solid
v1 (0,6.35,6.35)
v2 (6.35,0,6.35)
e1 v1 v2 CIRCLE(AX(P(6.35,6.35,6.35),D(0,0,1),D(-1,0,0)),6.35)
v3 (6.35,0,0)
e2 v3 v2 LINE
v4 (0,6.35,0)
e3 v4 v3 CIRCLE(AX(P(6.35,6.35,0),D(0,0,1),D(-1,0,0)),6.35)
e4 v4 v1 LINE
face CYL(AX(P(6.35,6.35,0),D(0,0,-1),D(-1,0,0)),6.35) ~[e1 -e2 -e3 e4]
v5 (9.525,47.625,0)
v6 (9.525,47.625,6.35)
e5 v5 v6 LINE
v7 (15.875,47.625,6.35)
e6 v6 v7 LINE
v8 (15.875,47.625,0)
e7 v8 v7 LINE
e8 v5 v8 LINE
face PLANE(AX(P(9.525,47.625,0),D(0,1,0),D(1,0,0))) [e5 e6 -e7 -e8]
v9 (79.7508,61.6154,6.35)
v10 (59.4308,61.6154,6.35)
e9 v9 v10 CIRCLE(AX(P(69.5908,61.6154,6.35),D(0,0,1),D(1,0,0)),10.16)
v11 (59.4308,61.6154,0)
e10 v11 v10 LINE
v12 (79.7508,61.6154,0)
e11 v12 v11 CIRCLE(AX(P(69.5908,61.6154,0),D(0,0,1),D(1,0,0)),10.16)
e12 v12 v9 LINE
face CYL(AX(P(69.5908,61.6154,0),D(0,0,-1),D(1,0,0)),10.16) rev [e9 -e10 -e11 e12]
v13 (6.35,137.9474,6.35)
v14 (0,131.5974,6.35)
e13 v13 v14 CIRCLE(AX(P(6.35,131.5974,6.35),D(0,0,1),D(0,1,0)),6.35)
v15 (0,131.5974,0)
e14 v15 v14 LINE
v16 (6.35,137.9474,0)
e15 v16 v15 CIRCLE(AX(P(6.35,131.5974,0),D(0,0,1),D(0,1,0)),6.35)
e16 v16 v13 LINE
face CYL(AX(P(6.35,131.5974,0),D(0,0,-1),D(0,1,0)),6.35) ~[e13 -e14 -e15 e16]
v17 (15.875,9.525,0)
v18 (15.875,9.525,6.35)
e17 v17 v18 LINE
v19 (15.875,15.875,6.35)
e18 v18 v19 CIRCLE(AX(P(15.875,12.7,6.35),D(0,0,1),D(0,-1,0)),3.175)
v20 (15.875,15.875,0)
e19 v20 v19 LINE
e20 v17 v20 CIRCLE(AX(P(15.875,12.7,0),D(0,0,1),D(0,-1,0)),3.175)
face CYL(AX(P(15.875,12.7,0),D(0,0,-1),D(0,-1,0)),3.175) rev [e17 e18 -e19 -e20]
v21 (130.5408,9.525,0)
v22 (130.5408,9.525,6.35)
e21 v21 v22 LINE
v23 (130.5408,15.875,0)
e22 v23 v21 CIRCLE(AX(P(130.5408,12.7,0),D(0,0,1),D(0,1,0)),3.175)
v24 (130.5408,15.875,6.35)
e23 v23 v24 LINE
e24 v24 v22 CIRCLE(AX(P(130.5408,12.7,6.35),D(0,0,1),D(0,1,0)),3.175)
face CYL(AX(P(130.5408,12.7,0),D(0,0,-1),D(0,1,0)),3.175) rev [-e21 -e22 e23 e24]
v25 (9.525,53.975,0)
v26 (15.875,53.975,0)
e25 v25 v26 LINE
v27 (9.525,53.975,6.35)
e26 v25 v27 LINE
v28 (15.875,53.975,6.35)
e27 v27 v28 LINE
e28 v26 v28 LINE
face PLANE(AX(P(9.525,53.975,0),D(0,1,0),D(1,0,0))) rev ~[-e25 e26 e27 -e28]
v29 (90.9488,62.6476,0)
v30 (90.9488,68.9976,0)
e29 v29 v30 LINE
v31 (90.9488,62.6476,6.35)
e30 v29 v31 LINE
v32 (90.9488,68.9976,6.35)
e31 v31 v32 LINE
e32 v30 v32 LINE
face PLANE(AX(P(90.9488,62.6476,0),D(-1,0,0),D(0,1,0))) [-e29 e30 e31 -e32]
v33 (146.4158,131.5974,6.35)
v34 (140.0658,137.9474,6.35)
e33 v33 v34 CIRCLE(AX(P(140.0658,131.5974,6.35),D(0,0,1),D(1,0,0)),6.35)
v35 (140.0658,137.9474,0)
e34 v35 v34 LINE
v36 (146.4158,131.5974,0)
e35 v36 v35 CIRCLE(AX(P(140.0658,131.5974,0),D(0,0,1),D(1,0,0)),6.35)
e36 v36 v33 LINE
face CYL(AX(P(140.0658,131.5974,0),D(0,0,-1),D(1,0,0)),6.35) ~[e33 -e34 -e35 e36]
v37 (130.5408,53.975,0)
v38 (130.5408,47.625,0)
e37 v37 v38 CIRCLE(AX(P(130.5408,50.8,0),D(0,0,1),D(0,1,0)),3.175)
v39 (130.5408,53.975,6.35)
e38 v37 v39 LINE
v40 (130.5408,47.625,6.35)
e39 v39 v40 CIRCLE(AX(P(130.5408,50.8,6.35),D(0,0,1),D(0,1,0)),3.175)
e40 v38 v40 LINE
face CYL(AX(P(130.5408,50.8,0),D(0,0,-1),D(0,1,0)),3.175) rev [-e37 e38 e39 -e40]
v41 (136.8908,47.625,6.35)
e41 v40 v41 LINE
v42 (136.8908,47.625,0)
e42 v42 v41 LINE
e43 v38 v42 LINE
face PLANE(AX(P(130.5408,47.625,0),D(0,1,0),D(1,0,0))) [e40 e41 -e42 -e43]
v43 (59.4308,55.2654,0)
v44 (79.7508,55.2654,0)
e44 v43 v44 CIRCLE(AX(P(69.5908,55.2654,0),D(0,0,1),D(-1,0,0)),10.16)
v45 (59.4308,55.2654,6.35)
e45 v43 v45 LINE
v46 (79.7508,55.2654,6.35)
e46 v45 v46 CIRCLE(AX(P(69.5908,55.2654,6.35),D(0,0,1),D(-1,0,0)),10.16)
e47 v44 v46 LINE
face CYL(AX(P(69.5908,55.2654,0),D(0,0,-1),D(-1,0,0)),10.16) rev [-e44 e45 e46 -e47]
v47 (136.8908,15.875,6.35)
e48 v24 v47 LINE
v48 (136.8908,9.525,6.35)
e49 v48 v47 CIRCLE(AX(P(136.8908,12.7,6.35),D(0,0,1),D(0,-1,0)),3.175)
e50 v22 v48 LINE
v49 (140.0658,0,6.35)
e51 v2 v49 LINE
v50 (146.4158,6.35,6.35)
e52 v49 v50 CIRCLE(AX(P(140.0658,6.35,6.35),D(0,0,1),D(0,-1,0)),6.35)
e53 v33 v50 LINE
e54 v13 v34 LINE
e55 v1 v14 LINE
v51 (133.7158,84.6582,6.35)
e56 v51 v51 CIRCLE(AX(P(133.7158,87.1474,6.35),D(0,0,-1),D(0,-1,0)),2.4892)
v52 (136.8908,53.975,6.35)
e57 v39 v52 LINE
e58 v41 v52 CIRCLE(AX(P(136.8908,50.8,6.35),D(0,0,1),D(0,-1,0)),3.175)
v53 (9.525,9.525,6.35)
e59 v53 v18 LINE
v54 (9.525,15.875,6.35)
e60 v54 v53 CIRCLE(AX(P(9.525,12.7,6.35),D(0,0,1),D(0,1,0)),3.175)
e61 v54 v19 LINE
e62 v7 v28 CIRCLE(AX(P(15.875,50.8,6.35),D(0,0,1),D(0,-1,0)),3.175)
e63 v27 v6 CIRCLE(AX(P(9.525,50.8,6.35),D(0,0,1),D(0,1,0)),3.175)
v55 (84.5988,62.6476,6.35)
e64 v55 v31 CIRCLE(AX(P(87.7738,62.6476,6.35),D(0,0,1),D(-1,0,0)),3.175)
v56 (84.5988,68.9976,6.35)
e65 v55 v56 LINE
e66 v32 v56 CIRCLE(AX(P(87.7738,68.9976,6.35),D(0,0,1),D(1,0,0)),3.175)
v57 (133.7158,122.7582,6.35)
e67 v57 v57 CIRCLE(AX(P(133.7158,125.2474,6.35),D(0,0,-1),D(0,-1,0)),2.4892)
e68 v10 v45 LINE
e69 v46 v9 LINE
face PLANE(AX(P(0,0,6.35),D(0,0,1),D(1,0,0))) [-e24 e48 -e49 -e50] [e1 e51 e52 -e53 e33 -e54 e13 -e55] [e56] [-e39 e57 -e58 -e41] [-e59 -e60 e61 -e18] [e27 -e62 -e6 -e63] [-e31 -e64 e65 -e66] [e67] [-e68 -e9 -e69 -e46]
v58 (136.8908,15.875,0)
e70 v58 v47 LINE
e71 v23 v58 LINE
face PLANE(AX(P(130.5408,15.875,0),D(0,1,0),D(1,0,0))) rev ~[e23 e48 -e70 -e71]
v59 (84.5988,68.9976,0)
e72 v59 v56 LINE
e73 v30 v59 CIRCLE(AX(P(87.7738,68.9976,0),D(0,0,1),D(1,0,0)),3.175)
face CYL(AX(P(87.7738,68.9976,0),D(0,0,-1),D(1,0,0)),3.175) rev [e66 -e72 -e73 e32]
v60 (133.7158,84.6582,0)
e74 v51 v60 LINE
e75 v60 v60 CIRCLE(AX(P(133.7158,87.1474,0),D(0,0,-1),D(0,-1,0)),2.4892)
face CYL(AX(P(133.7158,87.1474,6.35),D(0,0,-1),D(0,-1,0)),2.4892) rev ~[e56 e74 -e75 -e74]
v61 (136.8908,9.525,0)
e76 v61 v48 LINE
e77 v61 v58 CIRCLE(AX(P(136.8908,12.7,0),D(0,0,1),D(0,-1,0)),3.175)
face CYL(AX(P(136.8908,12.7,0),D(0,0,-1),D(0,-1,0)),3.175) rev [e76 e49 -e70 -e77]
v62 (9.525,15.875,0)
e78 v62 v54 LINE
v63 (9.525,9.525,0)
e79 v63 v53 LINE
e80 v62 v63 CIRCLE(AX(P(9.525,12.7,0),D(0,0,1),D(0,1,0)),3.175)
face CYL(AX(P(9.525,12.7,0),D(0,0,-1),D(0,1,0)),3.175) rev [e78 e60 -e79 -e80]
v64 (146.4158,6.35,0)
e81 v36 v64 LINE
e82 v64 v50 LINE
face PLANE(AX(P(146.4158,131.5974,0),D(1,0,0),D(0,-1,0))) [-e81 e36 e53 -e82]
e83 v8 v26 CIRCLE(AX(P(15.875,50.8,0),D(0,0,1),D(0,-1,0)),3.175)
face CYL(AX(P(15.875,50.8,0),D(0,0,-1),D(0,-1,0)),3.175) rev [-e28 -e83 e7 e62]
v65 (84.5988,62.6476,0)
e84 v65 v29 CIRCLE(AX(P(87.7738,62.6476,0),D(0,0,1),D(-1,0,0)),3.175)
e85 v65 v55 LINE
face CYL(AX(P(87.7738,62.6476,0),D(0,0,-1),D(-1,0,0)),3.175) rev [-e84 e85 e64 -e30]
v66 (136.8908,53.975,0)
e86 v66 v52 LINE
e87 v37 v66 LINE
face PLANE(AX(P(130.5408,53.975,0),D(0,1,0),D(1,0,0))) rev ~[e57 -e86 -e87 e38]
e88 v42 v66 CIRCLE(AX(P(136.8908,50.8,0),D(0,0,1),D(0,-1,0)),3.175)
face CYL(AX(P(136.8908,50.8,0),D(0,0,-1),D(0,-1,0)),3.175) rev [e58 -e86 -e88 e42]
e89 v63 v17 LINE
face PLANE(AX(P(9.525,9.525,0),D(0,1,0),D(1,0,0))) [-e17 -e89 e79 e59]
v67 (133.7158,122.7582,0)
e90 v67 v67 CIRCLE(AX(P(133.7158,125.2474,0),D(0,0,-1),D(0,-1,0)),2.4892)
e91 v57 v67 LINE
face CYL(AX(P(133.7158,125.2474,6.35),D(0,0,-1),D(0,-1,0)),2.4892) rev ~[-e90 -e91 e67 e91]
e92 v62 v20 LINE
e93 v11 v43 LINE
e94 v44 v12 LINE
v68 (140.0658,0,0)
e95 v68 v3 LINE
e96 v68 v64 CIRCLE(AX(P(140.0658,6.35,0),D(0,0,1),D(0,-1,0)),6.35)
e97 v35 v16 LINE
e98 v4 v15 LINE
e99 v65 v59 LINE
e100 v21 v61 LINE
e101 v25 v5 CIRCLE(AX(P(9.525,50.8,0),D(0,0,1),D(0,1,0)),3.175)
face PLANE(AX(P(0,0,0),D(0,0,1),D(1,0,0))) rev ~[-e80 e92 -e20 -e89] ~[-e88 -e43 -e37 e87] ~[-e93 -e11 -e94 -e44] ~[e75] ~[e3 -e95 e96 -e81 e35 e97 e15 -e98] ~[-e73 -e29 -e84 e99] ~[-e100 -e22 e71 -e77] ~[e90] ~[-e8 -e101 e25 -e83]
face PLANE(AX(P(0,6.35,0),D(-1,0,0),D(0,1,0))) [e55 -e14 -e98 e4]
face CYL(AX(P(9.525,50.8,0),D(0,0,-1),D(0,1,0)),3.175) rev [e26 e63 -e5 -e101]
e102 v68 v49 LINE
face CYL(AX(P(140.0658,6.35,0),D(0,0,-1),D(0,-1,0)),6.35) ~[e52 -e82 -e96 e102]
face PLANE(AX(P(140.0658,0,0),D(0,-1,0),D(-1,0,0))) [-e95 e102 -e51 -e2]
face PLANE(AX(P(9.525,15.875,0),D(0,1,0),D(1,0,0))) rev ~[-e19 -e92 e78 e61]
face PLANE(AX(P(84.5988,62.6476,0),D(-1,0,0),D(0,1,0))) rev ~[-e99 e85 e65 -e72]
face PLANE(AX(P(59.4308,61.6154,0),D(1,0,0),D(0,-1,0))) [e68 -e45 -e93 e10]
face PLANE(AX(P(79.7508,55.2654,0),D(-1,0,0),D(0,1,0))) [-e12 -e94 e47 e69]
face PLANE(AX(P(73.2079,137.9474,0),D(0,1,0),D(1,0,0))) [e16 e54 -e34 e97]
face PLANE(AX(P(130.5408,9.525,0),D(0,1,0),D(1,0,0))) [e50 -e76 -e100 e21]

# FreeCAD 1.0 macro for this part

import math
import FreeCAD as App
import Part
import Sketcher
from FreeCAD import Vector
Q = App.Units.Quantity

doc = App.newDocument("Part")
body = doc.addObject("PartDesign::Body", "Body")

# Sketch on XY plane
sketch1 = body.newObject("Sketcher::SketchObject", "Sketch")
sketch1.AttachmentSupport = (doc.getObject("XY_Plane"), [""])
sketch1.MapMode = "FlatFace"
sketch1.addGeometry([
    Part.LineSegment(Vector(140.1, 137.9, 0), Vector(6.3, 137.9, 0)),  # 0
    Part.ArcOfCircle(Part.Circle(Vector(6.3, 131.6, 0), Vector(0, 0, 1), 6.3), math.radians(90), math.radians(180)),  # 1
    Part.LineSegment(Vector(0, 131.6, 0), Vector(0, 6.3, 0)),  # 2
    Part.ArcOfCircle(Part.Circle(Vector(6.3, 6.3, 0), Vector(0, 0, 1), 6.3), math.radians(180), math.radians(270)),  # 3
    Part.LineSegment(Vector(6.3, 0, 0), Vector(140.1, 0, 0)),  # 4
    Part.ArcOfCircle(Part.Circle(Vector(140.1, 6.3, 0), Vector(0, 0, 1), 6.3), math.radians(-90), math.radians(0)),  # 5
    Part.LineSegment(Vector(146.4, 6.3, 0), Vector(146.4, 131.6, 0)),  # 6
    Part.ArcOfCircle(Part.Circle(Vector(140.1, 131.6, 0), Vector(0, 0, 1), 6.3), math.radians(0), math.radians(90)),  # 7
    Part.ArcOfCircle(Part.Circle(Vector(9.5, 12.7, 0), Vector(0, 0, 1), 3.2), math.radians(90), math.radians(270)),  # 8
    Part.LineSegment(Vector(9.5, 15.9, 0), Vector(15.9, 15.9, 0)),  # 9
    Part.ArcOfCircle(Part.Circle(Vector(15.9, 12.7, 0), Vector(0, 0, 1), 3.2), math.radians(-90), math.radians(90)),  # 10
    Part.LineSegment(Vector(15.9, 9.5, 0), Vector(9.5, 9.5, 0)),  # 11
    Part.ArcOfCircle(Part.Circle(Vector(9.5, 50.8, 0), Vector(0, 0, 1), 3.2), math.radians(90), math.radians(270)),  # 12
    Part.LineSegment(Vector(9.5, 54, 0), Vector(15.9, 54, 0)),  # 13
    Part.ArcOfCircle(Part.Circle(Vector(15.9, 50.8, 0), Vector(0, 0, 1), 3.2), math.radians(-90), math.radians(90)),  # 14
    Part.LineSegment(Vector(15.9, 47.6, 0), Vector(9.5, 47.6, 0)),  # 15
    Part.ArcOfCircle(Part.Circle(Vector(69.6, 61.6, 0), Vector(0, 0, 1), 10.2), math.radians(0), math.radians(180)),  # 16
    Part.LineSegment(Vector(79.8, 61.6, 0), Vector(79.8, 55.3, 0)),  # 17
    Part.ArcOfCircle(Part.Circle(Vector(69.6, 55.3, 0), Vector(0, 0, 1), 10.2), math.radians(180), math.radians(360)),  # 18
    Part.LineSegment(Vector(59.4, 55.3, 0), Vector(59.4, 61.6, 0)),  # 19
    Part.ArcOfCircle(Part.Circle(Vector(130.5, 12.7, 0), Vector(0, 0, 1), 3.2), math.radians(90), math.radians(270)),  # 20
    Part.LineSegment(Vector(130.5, 15.9, 0), Vector(136.9, 15.9, 0)),  # 21
    Part.ArcOfCircle(Part.Circle(Vector(136.9, 12.7, 0), Vector(0, 0, 1), 3.2), math.radians(-90), math.radians(90)),  # 22
    Part.LineSegment(Vector(136.9, 9.5, 0), Vector(130.5, 9.5, 0)),  # 23
    Part.ArcOfCircle(Part.Circle(Vector(87.8, 62.6, 0), Vector(0, 0, 1), 3.2), math.radians(180), math.radians(360)),  # 24
    Part.LineSegment(Vector(84.6, 62.6, 0), Vector(84.6, 69, 0)),  # 25
    Part.ArcOfCircle(Part.Circle(Vector(87.8, 69, 0), Vector(0, 0, 1), 3.2), math.radians(0), math.radians(180)),  # 26
    Part.LineSegment(Vector(90.9, 69, 0), Vector(90.9, 62.6, 0)),  # 27
    Part.ArcOfCircle(Part.Circle(Vector(130.5, 50.8, 0), Vector(0, 0, 1), 3.2), math.radians(90), math.radians(270)),  # 28
    Part.LineSegment(Vector(130.5, 54, 0), Vector(136.9, 54, 0)),  # 29
    Part.ArcOfCircle(Part.Circle(Vector(136.9, 50.8, 0), Vector(0, 0, 1), 3.2), math.radians(-90), math.radians(90)),  # 30
    Part.LineSegment(Vector(136.9, 47.6, 0), Vector(130.5, 47.6, 0)),  # 31
], False)
sketch1.addConstraint([
    Sketcher.Constraint("Tangent", 0, 2, 1, 1),
    Sketcher.Constraint("Tangent", 1, 2, 2, 1),
    Sketcher.Constraint("Tangent", 2, 2, 3, 1),
    Sketcher.Constraint("Tangent", 3, 2, 4, 1),
    Sketcher.Constraint("Tangent", 4, 2, 5, 1),
    Sketcher.Constraint("Tangent", 5, 2, 6, 1),
    Sketcher.Constraint("Tangent", 6, 2, 7, 1),
    Sketcher.Constraint("Tangent", 7, 2, 0, 1),
    Sketcher.Constraint("Tangent", 8, 1, 9, 1),
    Sketcher.Constraint("Tangent", 9, 2, 10, 2),
    Sketcher.Constraint("Tangent", 10, 1, 11, 1),
    Sketcher.Constraint("Tangent", 11, 2, 8, 2),
    Sketcher.Constraint("Tangent", 12, 1, 13, 1),
    Sketcher.Constraint("Tangent", 13, 2, 14, 2),
    Sketcher.Constraint("Tangent", 14, 1, 15, 1),
    Sketcher.Constraint("Tangent", 15, 2, 12, 2),
    Sketcher.Constraint("Tangent", 16, 1, 17, 1),
    Sketcher.Constraint("Tangent", 17, 2, 18, 2),
    Sketcher.Constraint("Tangent", 18, 1, 19, 1),
    Sketcher.Constraint("Tangent", 19, 2, 16, 2),
    Sketcher.Constraint("Tangent", 20, 1, 21, 1),
    Sketcher.Constraint("Tangent", 21, 2, 22, 2),
    Sketcher.Constraint("Tangent", 22, 1, 23, 1),
    Sketcher.Constraint("Tangent", 23, 2, 20, 2),
    Sketcher.Constraint("Tangent", 24, 1, 25, 1),
    Sketcher.Constraint("Tangent", 25, 2, 26, 2),
    Sketcher.Constraint("Tangent", 26, 1, 27, 1),
    Sketcher.Constraint("Tangent", 27, 2, 24, 2),
    Sketcher.Constraint("Tangent", 28, 1, 29, 1),
    Sketcher.Constraint("Tangent", 29, 2, 30, 2),
    Sketcher.Constraint("Tangent", 30, 1, 31, 1),
    Sketcher.Constraint("Tangent", 31, 2, 28, 2),
    Sketcher.Constraint("Horizontal", 0),
    Sketcher.Constraint("Vertical", 2),
    Sketcher.Constraint("Horizontal", 4),
    Sketcher.Constraint("Vertical", 6),
    Sketcher.Constraint("Horizontal", 9),
    Sketcher.Constraint("Horizontal", 11),
    Sketcher.Constraint("Horizontal", 13),
    Sketcher.Constraint("Horizontal", 15),
    Sketcher.Constraint("Vertical", 17),
    Sketcher.Constraint("Vertical", 19),
    Sketcher.Constraint("Horizontal", 21),
    Sketcher.Constraint("Horizontal", 23),
    Sketcher.Constraint("Vertical", 25),
    Sketcher.Constraint("Vertical", 27),
    Sketcher.Constraint("Horizontal", 29),
    Sketcher.Constraint("Horizontal", 31),
    Sketcher.Constraint("Equal", 1, 3),
    Sketcher.Constraint("Equal", 3, 5),
    Sketcher.Constraint("Equal", 5, 7),
    Sketcher.Constraint("Equal", 10, 12),
    Sketcher.Constraint("Equal", 14, 20),
    Sketcher.Constraint("Equal", 22, 24),
    Sketcher.Constraint("Equal", 26, 28),
    Sketcher.Constraint("PointOnObject", 1, 2, -2),
    Sketcher.Constraint("PointOnObject", 3, 2, -1),
    Sketcher.Constraint("Horizontal", 10, 3, 20, 3),
    Sketcher.Constraint("Horizontal", 14, 3, 28, 3),
    Sketcher.Constraint("Vertical", 8, 3, 12, 3),
    Sketcher.Constraint("Vertical", 10, 3, 14, 3),
    Sketcher.Constraint("Vertical", 20, 3, 28, 3),
    Sketcher.Constraint("Vertical", 22, 3, 30, 3),
    Sketcher.Constraint("Equal", 15, 21),
    Sketcher.Constraint("Equal", 31, 17),
    Sketcher.Constraint("Equal", 19, 25),
    Sketcher.Constraint("Radius", 16, Q("0.4 in")),
    Sketcher.Constraint("Radius", 1, Q("0.25 in")),
    Sketcher.Constraint("DistanceY", -1, 1, 12, 3, Q("2 in")),
    Sketcher.Constraint("Radius", 8, Q("0.125 in")),
    Sketcher.Constraint("DistanceX", 9, 1, 9, 2, Q("0.25 in")),
    Sketcher.Constraint("DistanceY", -1, 1, 8, 3, Q("0.5 in")),
    Sketcher.Constraint("DistanceY", 2, 2, 2, 1, Q("4.931 in")),
    Sketcher.Constraint("DistanceX", 0, 2, 0, 1, Q("5.2644 in")),
    Sketcher.Constraint("DistanceX", -1, 1, 8, 3, Q("0.375 in")),
    Sketcher.Constraint("DistanceX", 20, 3, 5, 3, Q("0.375 in")),
    Sketcher.Constraint("DistanceX", -1, 1, 16, 3, Q("2.7398 in")),
    Sketcher.Constraint("DistanceY", -1, 1, 16, 3, Q("2.4258 in")),
    Sketcher.Constraint("DistanceX", -1, 1, 24, 3, 87.7738),
    Sketcher.Constraint("DistanceY", -1, 1, 24, 3, 62.6476),
])
pad1 = body.newObject("PartDesign::Pad", "Pad")
pad1.Profile = sketch1
pad1.Length = Q("0.25 in")

# Sketch on XY plane
sketch2 = body.newObject("Sketcher::SketchObject", "Sketch001")
sketch2.AttachmentSupport = (doc.getObject("XY_Plane"), [""])
sketch2.MapMode = "FlatFace"
sketch2.AttachmentOffset = App.Placement(Vector(0, 0, 0.25 * 25.4), App.Rotation())
sketch2.addGeometry([
    Part.Circle(Vector(133.7, 87.1, 0), Vector(0, 0, 1), 2.5),
    Part.Circle(Vector(133.7, 125.2, 0), Vector(0, 0, 1), 2.5),
], False)
sketch2.addConstraint([
    Sketcher.Constraint("Equal", 0, 1),
    Sketcher.Constraint("Vertical", 0, 3, 1, 3),
    Sketcher.Constraint("Diameter", 0, Q("0.196 in")),
    Sketcher.Constraint("DistanceY", 0, 3, 1, 3, Q("1.5 in")),
    Sketcher.Constraint("DistanceY", -1, 1, 0, 3, Q("3.431 in")),
    Sketcher.Constraint("DistanceX", -1, 1, 0, 3, Q("5.2644 in")),
])
doc.recompute()
hole = body.newObject("PartDesign::Hole", "Hole")
hole.Profile = sketch2
hole.ThreadType = "None"
hole.Diameter = Q("0.196 in")
hole.DepthType = "Dimension"
hole.Depth = Q("0.75 in")
hole.DrillPoint = "Angled"
hole.DrillPointAngle = 118

doc.recompute()
